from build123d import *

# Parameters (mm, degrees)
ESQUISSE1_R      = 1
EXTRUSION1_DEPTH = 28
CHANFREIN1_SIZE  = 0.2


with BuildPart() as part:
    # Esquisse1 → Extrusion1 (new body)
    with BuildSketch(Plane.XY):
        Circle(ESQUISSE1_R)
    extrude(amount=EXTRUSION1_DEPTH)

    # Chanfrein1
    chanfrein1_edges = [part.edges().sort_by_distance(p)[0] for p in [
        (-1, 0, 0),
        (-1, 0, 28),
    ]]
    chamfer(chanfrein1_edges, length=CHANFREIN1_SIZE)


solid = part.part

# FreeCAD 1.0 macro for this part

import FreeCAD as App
import Part
import Sketcher

V = App.Vector


def edges_at(feature, points):
    """Names of the edges that pass closest to the given points."""
    edges = feature.Shape.Edges
    near = lambda p: min(range(len(edges)), key=lambda i: edges[i].distToShape(Part.Vertex(*p))[0])
    return sorted({f"Edge{near(p) + 1}" for p in points})

doc = App.newDocument("Part")
params = doc.addObject("Spreadsheet::Sheet", "Params")
for row, (alias, value) in enumerate([
    ("sketch1_diameter", "2 mm"),
    ("pad1_length", "28 mm"),
    ("chamfer_size", "0.2 mm"),
], start=1):
    params.set(f"A{row}", alias)
    params.set(f"B{row}", "=" + value)
    params.setAlias(f"B{row}", alias)

body = doc.addObject("PartDesign::Body", "Body")

# Sketch on XY plane
sketch1 = body.newObject("Sketcher::SketchObject", "Sketch")
sketch1.AttachmentSupport = (doc.getObject("XY_Plane"), [""])
sketch1.MapMode = "FlatFace"
sketch1.addGeometry(Part.Circle(V(0, 0, 0), V(0, 0, 1), 1), False)
sketch1.addConstraint(Sketcher.Constraint("Coincident", 0, 3, -1, 1))
sketch1.addConstraint(Sketcher.Constraint("Diameter", 0, 2.0))
sketch1.setExpression("Constraints[1]", "Params.sketch1_diameter")
pad1 = body.newObject("PartDesign::Pad", "Pad")
pad1.Profile = sketch1
pad1.setExpression("Length", "Params.pad1_length")
doc.recompute()

chamfer = body.newObject("PartDesign::Chamfer", "Chamfer")
chamfer.Base = (pad1, edges_at(pad1, [(-1, 0, 0), (-1, 0, 28)]))
chamfer.setExpression("Size", "Params.chamfer_size")

doc.recompute()
